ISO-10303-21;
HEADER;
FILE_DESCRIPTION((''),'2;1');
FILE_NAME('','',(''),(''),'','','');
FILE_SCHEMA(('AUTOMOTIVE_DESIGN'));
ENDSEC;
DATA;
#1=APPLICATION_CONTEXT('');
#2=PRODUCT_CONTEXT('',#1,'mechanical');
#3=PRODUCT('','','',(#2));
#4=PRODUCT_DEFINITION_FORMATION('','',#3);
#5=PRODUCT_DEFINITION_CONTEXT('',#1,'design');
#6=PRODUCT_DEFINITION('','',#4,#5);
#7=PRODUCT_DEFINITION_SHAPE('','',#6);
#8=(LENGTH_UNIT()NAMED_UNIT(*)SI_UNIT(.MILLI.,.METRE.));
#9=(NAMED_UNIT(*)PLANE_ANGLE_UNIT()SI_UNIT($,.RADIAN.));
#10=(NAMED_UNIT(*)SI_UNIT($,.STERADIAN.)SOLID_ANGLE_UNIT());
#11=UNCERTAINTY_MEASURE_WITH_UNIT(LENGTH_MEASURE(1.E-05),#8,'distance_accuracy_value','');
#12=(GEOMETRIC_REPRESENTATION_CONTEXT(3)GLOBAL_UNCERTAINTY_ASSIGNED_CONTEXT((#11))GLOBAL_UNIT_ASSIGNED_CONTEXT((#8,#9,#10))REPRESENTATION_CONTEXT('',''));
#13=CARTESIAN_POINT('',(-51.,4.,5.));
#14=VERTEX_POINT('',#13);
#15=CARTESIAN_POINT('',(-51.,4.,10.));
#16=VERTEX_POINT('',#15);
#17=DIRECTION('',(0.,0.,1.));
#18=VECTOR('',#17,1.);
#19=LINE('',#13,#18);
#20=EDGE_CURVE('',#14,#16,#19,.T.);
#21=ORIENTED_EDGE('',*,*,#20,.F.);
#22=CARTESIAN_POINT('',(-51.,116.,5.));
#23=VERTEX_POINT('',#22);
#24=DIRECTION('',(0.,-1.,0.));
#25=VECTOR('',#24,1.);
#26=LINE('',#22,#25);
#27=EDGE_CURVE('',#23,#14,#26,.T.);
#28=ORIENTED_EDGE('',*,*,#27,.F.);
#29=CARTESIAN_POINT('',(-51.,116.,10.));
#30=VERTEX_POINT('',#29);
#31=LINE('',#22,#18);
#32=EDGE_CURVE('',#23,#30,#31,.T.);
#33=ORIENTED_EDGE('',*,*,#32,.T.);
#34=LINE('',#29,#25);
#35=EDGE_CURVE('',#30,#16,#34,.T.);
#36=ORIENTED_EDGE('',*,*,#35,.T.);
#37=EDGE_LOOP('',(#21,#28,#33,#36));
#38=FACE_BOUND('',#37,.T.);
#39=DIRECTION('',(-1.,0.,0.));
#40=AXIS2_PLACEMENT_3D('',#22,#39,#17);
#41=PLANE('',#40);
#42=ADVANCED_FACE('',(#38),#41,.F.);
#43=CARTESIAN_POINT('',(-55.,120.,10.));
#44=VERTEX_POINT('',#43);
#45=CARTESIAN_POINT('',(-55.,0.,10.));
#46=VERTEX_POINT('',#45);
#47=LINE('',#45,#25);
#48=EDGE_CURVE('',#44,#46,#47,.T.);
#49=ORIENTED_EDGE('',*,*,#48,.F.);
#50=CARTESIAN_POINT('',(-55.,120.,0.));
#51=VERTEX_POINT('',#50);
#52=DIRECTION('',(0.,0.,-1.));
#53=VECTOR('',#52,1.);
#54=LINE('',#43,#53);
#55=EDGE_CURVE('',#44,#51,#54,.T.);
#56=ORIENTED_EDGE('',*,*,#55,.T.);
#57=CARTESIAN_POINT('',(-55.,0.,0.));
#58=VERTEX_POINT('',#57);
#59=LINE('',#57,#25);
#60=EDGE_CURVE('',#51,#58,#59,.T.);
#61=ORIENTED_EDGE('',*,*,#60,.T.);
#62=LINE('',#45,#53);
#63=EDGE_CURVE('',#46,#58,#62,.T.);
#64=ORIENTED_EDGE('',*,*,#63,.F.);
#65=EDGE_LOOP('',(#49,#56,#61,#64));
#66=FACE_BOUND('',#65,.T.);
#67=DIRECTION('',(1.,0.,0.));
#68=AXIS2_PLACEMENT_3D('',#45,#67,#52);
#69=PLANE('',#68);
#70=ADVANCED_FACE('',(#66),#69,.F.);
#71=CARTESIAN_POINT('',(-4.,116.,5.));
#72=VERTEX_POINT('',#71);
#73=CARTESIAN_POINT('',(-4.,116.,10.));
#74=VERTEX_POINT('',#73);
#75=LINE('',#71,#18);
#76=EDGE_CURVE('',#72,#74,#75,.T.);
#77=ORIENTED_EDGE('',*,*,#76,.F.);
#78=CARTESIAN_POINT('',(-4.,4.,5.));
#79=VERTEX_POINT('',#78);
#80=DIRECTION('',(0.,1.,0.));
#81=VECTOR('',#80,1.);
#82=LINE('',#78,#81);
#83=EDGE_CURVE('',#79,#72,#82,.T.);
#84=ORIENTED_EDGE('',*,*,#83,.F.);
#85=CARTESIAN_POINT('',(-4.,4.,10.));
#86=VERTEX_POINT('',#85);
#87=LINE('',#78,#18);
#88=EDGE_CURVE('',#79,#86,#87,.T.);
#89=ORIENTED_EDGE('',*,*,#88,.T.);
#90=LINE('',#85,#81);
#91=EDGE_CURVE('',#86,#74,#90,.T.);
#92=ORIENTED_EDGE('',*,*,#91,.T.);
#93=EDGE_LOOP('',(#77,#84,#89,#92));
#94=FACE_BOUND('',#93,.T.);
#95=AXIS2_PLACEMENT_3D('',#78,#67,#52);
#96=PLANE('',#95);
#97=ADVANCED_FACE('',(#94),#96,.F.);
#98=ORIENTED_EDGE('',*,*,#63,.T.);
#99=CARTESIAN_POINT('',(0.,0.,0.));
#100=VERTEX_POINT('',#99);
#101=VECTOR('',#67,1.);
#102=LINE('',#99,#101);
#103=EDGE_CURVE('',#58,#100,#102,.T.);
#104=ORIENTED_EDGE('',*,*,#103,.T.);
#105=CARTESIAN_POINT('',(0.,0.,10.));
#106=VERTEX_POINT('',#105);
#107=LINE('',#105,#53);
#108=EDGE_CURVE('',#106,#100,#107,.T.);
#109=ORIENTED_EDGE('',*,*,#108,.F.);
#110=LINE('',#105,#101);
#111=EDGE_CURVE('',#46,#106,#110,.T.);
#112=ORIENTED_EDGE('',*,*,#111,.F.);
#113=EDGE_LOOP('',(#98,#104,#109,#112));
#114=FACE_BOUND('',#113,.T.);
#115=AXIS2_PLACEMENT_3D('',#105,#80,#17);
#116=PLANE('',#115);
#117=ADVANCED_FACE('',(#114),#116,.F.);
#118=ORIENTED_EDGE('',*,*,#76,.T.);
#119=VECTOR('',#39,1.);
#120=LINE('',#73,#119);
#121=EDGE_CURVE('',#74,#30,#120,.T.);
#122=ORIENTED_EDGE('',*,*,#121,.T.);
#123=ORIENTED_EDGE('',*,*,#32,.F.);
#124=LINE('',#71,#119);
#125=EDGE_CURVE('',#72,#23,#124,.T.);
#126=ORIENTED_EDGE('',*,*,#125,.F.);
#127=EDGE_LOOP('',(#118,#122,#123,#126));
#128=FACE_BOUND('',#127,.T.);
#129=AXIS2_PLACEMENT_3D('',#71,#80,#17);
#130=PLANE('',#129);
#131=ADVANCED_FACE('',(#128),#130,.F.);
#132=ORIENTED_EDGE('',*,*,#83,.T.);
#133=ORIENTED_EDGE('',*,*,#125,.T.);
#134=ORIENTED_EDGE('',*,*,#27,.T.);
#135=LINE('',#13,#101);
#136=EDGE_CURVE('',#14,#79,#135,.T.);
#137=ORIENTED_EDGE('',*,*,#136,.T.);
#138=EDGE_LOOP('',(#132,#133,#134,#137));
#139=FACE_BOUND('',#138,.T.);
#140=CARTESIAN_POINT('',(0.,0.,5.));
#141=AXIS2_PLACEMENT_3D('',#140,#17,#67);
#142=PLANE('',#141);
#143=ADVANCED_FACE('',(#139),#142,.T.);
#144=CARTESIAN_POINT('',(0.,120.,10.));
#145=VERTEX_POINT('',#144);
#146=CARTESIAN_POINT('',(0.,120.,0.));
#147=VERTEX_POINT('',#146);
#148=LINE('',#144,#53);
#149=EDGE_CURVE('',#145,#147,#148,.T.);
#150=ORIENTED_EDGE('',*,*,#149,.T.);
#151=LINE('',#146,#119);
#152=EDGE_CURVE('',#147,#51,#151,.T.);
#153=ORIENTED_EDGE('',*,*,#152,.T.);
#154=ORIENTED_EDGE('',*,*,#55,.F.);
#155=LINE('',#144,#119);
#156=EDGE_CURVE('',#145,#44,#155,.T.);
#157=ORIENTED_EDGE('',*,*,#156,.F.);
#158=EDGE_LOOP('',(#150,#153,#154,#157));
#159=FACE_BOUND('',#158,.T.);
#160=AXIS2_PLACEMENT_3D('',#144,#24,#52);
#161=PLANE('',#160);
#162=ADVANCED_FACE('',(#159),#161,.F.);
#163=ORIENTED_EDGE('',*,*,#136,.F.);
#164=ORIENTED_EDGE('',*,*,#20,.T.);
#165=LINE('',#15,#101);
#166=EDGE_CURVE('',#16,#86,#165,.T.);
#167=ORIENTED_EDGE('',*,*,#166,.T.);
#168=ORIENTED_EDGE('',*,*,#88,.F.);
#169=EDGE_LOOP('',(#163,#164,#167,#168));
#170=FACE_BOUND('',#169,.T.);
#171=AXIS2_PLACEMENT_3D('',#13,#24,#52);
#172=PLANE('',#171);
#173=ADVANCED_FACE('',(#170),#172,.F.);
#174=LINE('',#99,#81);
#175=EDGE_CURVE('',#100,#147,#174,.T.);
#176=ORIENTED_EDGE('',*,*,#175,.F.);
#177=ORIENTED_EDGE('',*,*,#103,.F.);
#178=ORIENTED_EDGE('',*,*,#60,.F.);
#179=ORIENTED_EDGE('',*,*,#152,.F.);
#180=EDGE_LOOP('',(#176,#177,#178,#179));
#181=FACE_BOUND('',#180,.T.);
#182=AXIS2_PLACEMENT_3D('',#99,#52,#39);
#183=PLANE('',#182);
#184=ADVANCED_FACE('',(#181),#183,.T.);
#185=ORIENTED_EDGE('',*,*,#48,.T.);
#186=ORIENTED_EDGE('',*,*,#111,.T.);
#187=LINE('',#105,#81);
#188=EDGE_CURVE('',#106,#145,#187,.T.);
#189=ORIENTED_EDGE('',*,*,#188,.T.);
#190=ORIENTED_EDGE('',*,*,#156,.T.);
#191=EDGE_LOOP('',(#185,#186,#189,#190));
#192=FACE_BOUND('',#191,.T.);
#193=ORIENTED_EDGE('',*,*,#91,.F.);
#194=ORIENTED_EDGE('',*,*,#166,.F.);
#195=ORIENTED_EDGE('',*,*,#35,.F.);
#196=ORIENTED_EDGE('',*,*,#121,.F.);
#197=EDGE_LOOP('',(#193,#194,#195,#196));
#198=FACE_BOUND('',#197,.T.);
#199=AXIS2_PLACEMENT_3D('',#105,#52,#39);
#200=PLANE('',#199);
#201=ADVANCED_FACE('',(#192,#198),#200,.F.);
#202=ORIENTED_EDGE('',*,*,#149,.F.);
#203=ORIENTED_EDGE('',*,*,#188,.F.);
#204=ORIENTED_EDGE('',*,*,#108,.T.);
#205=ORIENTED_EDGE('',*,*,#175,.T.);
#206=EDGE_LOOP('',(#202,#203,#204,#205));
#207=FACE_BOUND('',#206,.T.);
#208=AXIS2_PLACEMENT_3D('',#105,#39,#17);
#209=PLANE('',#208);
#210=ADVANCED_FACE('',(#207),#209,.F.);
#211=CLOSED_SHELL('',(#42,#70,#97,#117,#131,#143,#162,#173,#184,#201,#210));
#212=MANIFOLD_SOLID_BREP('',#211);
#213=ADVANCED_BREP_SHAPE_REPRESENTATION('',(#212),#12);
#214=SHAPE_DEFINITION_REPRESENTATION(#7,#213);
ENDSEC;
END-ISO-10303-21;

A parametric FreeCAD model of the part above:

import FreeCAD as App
import Part
import Sketcher

doc = App.newDocument("Part")
body = doc.addObject("PartDesign::Body", "Body")

sketch1 = doc.addObject("Sketcher::SketchObject", "Sketch")
body.addObject(sketch1)
sketch1.AttachmentSupport = (doc.XY_Plane, [""])
sketch1.MapMode = "FlatFace"
sketch1.addGeometry(Part.LineSegment(App.Vector(-55, 0, 0), App.Vector(0, 0, 0)), False)
sketch1.addGeometry(Part.LineSegment(App.Vector(0, 0, 0), App.Vector(0, 120, 0)), False)
sketch1.addGeometry(Part.LineSegment(App.Vector(0, 120, 0), App.Vector(-55, 120, 0)), False)
sketch1.addGeometry(Part.LineSegment(App.Vector(-55, 120, 0), App.Vector(-55, 0, 0)), False)
sketch1.addConstraint(Sketcher.Constraint("Coincident", 0, 2, 1, 1))
sketch1.addConstraint(Sketcher.Constraint("Coincident", 1, 2, 2, 1))
sketch1.addConstraint(Sketcher.Constraint("Coincident", 2, 2, 3, 1))
sketch1.addConstraint(Sketcher.Constraint("Coincident", 3, 2, 0, 1))
sketch1.addConstraint(Sketcher.Constraint("Horizontal", 0))
sketch1.addConstraint(Sketcher.Constraint("Vertical", 1))
sketch1.addConstraint(Sketcher.Constraint("Horizontal", 2))
sketch1.addConstraint(Sketcher.Constraint("Vertical", 3))
sketch1.addConstraint(Sketcher.Constraint("Coincident", 0, 2, -1, 1))
sketch1.addConstraint(Sketcher.Constraint("DistanceX", 0, 1, 0, 2, 55.0))
sketch1.addConstraint(Sketcher.Constraint("DistanceY", 1, 1, 1, 2, 120.0))
pad1 = doc.addObject("PartDesign::Pad", "Pad")
body.addObject(pad1)
pad1.Profile = sketch1
pad1.Length = 10

sketch2 = doc.addObject("Sketcher::SketchObject", "Sketch001")
body.addObject(sketch2)
sketch2.AttachmentSupport = (doc.XY_Plane, [""])
sketch2.MapMode = "FlatFace"
sketch2.AttachmentOffset = App.Placement(App.Vector(0, 0, 10), App.Rotation())
sketch2.addGeometry(Part.LineSegment(App.Vector(-51, 116, 0), App.Vector(-51, 4, 0)), False)
sketch2.addGeometry(Part.LineSegment(App.Vector(-51, 4, 0), App.Vector(-4, 4, 0)), False)
sketch2.addGeometry(Part.LineSegment(App.Vector(-4, 4, 0), App.Vector(-4, 116, 0)), False)
sketch2.addGeometry(Part.LineSegment(App.Vector(-4, 116, 0), App.Vector(-51, 116, 0)), False)
sketch2.addConstraint(Sketcher.Constraint("Coincident", 0, 2, 1, 1))
sketch2.addConstraint(Sketcher.Constraint("Coincident", 1, 2, 2, 1))
sketch2.addConstraint(Sketcher.Constraint("Coincident", 2, 2, 3, 1))
sketch2.addConstraint(Sketcher.Constraint("Coincident", 3, 2, 0, 1))
sketch2.addConstraint(Sketcher.Constraint("Vertical", 0))
sketch2.addConstraint(Sketcher.Constraint("Horizontal", 1))
sketch2.addConstraint(Sketcher.Constraint("Vertical", 2))
sketch2.addConstraint(Sketcher.Constraint("Horizontal", 3))
sketch2.addConstraint(Sketcher.Constraint("DistanceX", 1, 1, 1, 2, 47.0))
sketch2.addConstraint(Sketcher.Constraint("DistanceY", 0, 2, 0, 1, 112.0))
sketch2.addConstraint(Sketcher.Constraint("DistanceX", 0, 2, -1, 1, 51.0))
sketch2.addConstraint(Sketcher.Constraint("DistanceY", -1, 1, 0, 2, 4.0))
pocket1 = doc.addObject("PartDesign::Pocket", "Pocket")
body.addObject(pocket1)
pocket1.Profile = sketch2
pocket1.Length = 5

doc.recompute()
